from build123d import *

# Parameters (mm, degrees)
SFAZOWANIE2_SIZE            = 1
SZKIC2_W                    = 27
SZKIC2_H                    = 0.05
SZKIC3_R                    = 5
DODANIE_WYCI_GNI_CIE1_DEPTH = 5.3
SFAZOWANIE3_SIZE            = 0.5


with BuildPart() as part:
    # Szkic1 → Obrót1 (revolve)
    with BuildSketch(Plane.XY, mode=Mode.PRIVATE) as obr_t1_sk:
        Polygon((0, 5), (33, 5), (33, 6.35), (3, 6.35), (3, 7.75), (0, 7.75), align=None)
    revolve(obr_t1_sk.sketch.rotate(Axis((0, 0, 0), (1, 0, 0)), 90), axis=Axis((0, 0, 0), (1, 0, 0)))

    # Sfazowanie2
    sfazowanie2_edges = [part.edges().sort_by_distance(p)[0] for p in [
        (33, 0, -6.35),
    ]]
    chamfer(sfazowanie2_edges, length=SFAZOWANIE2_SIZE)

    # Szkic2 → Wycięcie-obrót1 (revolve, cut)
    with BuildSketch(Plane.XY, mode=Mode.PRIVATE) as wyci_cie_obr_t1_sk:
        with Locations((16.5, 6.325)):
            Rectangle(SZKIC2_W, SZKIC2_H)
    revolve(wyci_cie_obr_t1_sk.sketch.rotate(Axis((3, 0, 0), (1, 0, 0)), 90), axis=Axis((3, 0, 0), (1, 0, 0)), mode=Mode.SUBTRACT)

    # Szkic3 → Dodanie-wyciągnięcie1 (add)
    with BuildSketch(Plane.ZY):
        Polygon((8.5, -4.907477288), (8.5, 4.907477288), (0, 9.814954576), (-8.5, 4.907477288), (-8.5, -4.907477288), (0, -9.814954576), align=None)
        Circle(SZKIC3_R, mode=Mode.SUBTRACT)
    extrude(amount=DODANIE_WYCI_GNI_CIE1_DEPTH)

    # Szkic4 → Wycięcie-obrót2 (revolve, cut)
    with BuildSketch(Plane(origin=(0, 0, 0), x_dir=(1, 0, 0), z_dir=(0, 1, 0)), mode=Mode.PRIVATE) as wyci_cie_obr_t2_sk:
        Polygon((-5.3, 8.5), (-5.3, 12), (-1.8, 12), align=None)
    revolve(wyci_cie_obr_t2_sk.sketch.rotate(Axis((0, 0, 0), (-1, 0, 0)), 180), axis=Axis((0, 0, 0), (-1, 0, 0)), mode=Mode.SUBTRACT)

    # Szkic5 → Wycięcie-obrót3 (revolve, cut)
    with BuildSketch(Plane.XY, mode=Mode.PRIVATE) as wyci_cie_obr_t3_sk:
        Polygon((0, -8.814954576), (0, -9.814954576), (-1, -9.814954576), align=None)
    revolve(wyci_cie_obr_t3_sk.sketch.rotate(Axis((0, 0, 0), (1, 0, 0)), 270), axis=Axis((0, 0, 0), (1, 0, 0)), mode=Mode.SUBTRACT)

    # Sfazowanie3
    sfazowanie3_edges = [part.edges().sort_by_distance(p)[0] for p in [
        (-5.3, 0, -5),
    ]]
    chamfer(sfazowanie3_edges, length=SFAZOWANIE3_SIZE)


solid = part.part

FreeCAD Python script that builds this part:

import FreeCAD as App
import Part
import Sketcher
Q = App.Units.Quantity


def edges_at(feature, points):
    """Names of the edges that pass closest to the given points."""
    edges = feature.Shape.Edges
    near = lambda p: min(range(len(edges)), key=lambda i: edges[i].distToShape(Part.Vertex(*p))[0])
    return sorted({f"Edge{near(p) + 1}" for p in points})


def add_polygon(sketch, points):
    """Adds a closed chain of lines whose ends are joined by coincident constraints."""
    first, n = sketch.GeometryCount, len(points)
    for a, b in zip(points, points[1:] + points[:1]):
        sketch.addGeometry(Part.LineSegment(App.Vector(*a, 0), App.Vector(*b, 0)), False)
    for i in range(n):
        sketch.addConstraint(Sketcher.Constraint("Coincident", first + i, 2, first + (i + 1) % n, 1))

doc = App.newDocument("Part")
body = doc.addObject("PartDesign::Body", "Body")

# Sketch on XY plane
sketch1 = body.newObject("Sketcher::SketchObject", "Sketch")
sketch1.AttachmentSupport = (doc.getObject("XY_Plane"), [""])
sketch1.MapMode = "FlatFace"
add_polygon(sketch1, [(0, 5), (33, 5), (33, 6.3), (3, 6.3), (3, 7.8), (0, 7.8)])  # lines 0-5
sketch1.addConstraint([
    Sketcher.Constraint("Horizontal", 0),
    Sketcher.Constraint("Vertical", 1),
    Sketcher.Constraint("Horizontal", 2),
    Sketcher.Constraint("Vertical", 3),
    Sketcher.Constraint("Horizontal", 4),
    Sketcher.Constraint("Vertical", 5),
    Sketcher.Constraint("PointOnObject", 4, 2, -2),
    Sketcher.Constraint("DistanceX", 0, 1, 0, 2, Q("33 mm")),
    Sketcher.Constraint("DistanceX", 2, 2, 2, 1, Q("30 mm")),
    Sketcher.Constraint("DistanceY", 3, 1, 3, 2, Q("1.4 mm")),
    Sketcher.Constraint("DistanceY", -1, 1, 0, 2, Q("5 mm")),
    Sketcher.Constraint("DistanceY", 1, 1, 1, 2, Q("1.35 mm")),
])
revolution = body.newObject("PartDesign::Revolution", "Revolution")
revolution.Profile = sketch1
revolution.ReferenceAxis = (sketch1, ["H_Axis"])
revolution.Angle = 360
doc.recompute()

chamfer = body.newObject("PartDesign::Chamfer", "Chamfer")
chamfer.Base = (revolution, edges_at(revolution, [(33, 0, -6.35)]))
chamfer.Size = 1

# Sketch on XY plane
sketch2 = body.newObject("Sketcher::SketchObject", "Sketch001")
sketch2.AttachmentSupport = (doc.getObject("XY_Plane"), [""])
sketch2.MapMode = "FlatFace"
add_polygon(sketch2, [(3, 6.35), (3, 6.3), (30, 6.3), (30, 6.35)])  # lines 0-3
sketch2.addConstraint([
    Sketcher.Constraint("Vertical", 0),
    Sketcher.Constraint("Horizontal", 1),
    Sketcher.Constraint("Vertical", 2),
    Sketcher.Constraint("Horizontal", 3),
    Sketcher.Constraint("DistanceX", 1, 1, 1, 2, Q("27 mm")),
    Sketcher.Constraint("DistanceX", -1, 1, 0, 2, Q("3 mm")),
    Sketcher.Constraint("DistanceY", 0, 2, 0, 1, Q("0.05 mm")),
    Sketcher.Constraint("DistanceY", -1, 1, 0, 2, Q("6.3 mm")),
])
groove = body.newObject("PartDesign::Groove", "Groove")
groove.Profile = sketch2
groove.ReferenceAxis = (sketch2, ["H_Axis"])
groove.Angle = 360

# Sketch on YZ plane
sketch3 = body.newObject("Sketcher::SketchObject", "Sketch002")
sketch3.AttachmentSupport = (doc.getObject("YZ_Plane"), [""])
sketch3.MapMode = "FlatFace"
add_polygon(sketch3, [(-5, 8), (5, 8), (10, 0), (5, -8), (-5, -8), (-10, 0)])  # lines 0-5
sketch3.addGeometry(Part.Circle(App.Vector(0, 0, 0), App.Vector(0, 0, 1), 5), False)  # 6
sketch3.addConstraint([
    Sketcher.Constraint("Horizontal", 0),
    Sketcher.Constraint("Horizontal", 3),
    Sketcher.Constraint("Coincident", 6, 3, -1, 1),
    Sketcher.Constraint("Symmetric", 0, 2, 3, 2, -1, 1),
    Sketcher.Constraint("Symmetric", 1, 2, 4, 2, -1, 1),
    Sketcher.Constraint("PointOnObject", 1, 2, -1),
    Sketcher.Constraint("Parallel", 2, 5),
    Sketcher.Constraint("Vertical", 0, 2, 2, 2),
    Sketcher.Constraint("Diameter", 6, Q("10 mm")),
    Sketcher.Constraint("Angle", 1, Q("-60 deg")),
    Sketcher.Constraint("DistanceY", 2, 2, 0, 2, Q("17 mm")),
    Sketcher.Constraint("DistanceX", 0, 1, 0, 2, Q("9.814955 mm")),
])
pad1 = body.newObject("PartDesign::Pad", "Pad")
pad1.Profile = sketch3
pad1.Length = 5.3
pad1.Reversed = True

# Sketch on XZ plane
sketch4 = body.newObject("Sketcher::SketchObject", "Sketch003")
sketch4.AttachmentSupport = (doc.getObject("XZ_Plane"), [""])
sketch4.MapMode = "FlatFace"
add_polygon(sketch4, [(-5.3, -12), (-5.3, -8.5), (-1.8, -12)])  # lines 0-2
sketch4.addConstraint([
    Sketcher.Constraint("Vertical", 0),
    Sketcher.Constraint("Horizontal", 2),
    Sketcher.Constraint("Equal", 2, 0),
    Sketcher.Constraint("DistanceX", 2, 2, 2, 1, Q("3.5 mm")),
    Sketcher.Constraint("DistanceY", 1, 2, -1, 1, Q("12 mm")),
    Sketcher.Constraint("DistanceX", 0, 2, -1, 1, Q("5.3 mm")),
])
groove2 = body.newObject("PartDesign::Groove", "Groove001")
groove2.Profile = sketch4
groove2.ReferenceAxis = (sketch4, ["H_Axis"])
groove2.Angle = 360

# Sketch on XY plane
sketch5 = body.newObject("Sketcher::SketchObject", "Sketch004")
sketch5.AttachmentSupport = (doc.getObject("XY_Plane"), [""])
sketch5.MapMode = "FlatFace"
add_polygon(sketch5, [(0, -9.8), (0, -8.8), (-1, -9.8)])  # lines 0-2
sketch5.addConstraint([
    Sketcher.Constraint("Vertical", 0),
    Sketcher.Constraint("Horizontal", 2),
    Sketcher.Constraint("PointOnObject", 0, 2, -2),
    Sketcher.Constraint("Equal", 2, 0),
    Sketcher.Constraint("DistanceX", 2, 1, 2, 2, Q("1 mm")),
    Sketcher.Constraint("DistanceY", 0, 2, -1, 1, Q("8.814955 mm")),
])
groove3 = body.newObject("PartDesign::Groove", "Groove002")
groove3.Profile = sketch5
groove3.ReferenceAxis = (sketch5, ["H_Axis"])
groove3.Angle = 360
doc.recompute()

chamfer2 = body.newObject("PartDesign::Chamfer", "Chamfer001")
chamfer2.Base = (groove3, edges_at(groove3, [(-5.3, 0, -5)]))
chamfer2.Size = 0.5

doc.recompute()
